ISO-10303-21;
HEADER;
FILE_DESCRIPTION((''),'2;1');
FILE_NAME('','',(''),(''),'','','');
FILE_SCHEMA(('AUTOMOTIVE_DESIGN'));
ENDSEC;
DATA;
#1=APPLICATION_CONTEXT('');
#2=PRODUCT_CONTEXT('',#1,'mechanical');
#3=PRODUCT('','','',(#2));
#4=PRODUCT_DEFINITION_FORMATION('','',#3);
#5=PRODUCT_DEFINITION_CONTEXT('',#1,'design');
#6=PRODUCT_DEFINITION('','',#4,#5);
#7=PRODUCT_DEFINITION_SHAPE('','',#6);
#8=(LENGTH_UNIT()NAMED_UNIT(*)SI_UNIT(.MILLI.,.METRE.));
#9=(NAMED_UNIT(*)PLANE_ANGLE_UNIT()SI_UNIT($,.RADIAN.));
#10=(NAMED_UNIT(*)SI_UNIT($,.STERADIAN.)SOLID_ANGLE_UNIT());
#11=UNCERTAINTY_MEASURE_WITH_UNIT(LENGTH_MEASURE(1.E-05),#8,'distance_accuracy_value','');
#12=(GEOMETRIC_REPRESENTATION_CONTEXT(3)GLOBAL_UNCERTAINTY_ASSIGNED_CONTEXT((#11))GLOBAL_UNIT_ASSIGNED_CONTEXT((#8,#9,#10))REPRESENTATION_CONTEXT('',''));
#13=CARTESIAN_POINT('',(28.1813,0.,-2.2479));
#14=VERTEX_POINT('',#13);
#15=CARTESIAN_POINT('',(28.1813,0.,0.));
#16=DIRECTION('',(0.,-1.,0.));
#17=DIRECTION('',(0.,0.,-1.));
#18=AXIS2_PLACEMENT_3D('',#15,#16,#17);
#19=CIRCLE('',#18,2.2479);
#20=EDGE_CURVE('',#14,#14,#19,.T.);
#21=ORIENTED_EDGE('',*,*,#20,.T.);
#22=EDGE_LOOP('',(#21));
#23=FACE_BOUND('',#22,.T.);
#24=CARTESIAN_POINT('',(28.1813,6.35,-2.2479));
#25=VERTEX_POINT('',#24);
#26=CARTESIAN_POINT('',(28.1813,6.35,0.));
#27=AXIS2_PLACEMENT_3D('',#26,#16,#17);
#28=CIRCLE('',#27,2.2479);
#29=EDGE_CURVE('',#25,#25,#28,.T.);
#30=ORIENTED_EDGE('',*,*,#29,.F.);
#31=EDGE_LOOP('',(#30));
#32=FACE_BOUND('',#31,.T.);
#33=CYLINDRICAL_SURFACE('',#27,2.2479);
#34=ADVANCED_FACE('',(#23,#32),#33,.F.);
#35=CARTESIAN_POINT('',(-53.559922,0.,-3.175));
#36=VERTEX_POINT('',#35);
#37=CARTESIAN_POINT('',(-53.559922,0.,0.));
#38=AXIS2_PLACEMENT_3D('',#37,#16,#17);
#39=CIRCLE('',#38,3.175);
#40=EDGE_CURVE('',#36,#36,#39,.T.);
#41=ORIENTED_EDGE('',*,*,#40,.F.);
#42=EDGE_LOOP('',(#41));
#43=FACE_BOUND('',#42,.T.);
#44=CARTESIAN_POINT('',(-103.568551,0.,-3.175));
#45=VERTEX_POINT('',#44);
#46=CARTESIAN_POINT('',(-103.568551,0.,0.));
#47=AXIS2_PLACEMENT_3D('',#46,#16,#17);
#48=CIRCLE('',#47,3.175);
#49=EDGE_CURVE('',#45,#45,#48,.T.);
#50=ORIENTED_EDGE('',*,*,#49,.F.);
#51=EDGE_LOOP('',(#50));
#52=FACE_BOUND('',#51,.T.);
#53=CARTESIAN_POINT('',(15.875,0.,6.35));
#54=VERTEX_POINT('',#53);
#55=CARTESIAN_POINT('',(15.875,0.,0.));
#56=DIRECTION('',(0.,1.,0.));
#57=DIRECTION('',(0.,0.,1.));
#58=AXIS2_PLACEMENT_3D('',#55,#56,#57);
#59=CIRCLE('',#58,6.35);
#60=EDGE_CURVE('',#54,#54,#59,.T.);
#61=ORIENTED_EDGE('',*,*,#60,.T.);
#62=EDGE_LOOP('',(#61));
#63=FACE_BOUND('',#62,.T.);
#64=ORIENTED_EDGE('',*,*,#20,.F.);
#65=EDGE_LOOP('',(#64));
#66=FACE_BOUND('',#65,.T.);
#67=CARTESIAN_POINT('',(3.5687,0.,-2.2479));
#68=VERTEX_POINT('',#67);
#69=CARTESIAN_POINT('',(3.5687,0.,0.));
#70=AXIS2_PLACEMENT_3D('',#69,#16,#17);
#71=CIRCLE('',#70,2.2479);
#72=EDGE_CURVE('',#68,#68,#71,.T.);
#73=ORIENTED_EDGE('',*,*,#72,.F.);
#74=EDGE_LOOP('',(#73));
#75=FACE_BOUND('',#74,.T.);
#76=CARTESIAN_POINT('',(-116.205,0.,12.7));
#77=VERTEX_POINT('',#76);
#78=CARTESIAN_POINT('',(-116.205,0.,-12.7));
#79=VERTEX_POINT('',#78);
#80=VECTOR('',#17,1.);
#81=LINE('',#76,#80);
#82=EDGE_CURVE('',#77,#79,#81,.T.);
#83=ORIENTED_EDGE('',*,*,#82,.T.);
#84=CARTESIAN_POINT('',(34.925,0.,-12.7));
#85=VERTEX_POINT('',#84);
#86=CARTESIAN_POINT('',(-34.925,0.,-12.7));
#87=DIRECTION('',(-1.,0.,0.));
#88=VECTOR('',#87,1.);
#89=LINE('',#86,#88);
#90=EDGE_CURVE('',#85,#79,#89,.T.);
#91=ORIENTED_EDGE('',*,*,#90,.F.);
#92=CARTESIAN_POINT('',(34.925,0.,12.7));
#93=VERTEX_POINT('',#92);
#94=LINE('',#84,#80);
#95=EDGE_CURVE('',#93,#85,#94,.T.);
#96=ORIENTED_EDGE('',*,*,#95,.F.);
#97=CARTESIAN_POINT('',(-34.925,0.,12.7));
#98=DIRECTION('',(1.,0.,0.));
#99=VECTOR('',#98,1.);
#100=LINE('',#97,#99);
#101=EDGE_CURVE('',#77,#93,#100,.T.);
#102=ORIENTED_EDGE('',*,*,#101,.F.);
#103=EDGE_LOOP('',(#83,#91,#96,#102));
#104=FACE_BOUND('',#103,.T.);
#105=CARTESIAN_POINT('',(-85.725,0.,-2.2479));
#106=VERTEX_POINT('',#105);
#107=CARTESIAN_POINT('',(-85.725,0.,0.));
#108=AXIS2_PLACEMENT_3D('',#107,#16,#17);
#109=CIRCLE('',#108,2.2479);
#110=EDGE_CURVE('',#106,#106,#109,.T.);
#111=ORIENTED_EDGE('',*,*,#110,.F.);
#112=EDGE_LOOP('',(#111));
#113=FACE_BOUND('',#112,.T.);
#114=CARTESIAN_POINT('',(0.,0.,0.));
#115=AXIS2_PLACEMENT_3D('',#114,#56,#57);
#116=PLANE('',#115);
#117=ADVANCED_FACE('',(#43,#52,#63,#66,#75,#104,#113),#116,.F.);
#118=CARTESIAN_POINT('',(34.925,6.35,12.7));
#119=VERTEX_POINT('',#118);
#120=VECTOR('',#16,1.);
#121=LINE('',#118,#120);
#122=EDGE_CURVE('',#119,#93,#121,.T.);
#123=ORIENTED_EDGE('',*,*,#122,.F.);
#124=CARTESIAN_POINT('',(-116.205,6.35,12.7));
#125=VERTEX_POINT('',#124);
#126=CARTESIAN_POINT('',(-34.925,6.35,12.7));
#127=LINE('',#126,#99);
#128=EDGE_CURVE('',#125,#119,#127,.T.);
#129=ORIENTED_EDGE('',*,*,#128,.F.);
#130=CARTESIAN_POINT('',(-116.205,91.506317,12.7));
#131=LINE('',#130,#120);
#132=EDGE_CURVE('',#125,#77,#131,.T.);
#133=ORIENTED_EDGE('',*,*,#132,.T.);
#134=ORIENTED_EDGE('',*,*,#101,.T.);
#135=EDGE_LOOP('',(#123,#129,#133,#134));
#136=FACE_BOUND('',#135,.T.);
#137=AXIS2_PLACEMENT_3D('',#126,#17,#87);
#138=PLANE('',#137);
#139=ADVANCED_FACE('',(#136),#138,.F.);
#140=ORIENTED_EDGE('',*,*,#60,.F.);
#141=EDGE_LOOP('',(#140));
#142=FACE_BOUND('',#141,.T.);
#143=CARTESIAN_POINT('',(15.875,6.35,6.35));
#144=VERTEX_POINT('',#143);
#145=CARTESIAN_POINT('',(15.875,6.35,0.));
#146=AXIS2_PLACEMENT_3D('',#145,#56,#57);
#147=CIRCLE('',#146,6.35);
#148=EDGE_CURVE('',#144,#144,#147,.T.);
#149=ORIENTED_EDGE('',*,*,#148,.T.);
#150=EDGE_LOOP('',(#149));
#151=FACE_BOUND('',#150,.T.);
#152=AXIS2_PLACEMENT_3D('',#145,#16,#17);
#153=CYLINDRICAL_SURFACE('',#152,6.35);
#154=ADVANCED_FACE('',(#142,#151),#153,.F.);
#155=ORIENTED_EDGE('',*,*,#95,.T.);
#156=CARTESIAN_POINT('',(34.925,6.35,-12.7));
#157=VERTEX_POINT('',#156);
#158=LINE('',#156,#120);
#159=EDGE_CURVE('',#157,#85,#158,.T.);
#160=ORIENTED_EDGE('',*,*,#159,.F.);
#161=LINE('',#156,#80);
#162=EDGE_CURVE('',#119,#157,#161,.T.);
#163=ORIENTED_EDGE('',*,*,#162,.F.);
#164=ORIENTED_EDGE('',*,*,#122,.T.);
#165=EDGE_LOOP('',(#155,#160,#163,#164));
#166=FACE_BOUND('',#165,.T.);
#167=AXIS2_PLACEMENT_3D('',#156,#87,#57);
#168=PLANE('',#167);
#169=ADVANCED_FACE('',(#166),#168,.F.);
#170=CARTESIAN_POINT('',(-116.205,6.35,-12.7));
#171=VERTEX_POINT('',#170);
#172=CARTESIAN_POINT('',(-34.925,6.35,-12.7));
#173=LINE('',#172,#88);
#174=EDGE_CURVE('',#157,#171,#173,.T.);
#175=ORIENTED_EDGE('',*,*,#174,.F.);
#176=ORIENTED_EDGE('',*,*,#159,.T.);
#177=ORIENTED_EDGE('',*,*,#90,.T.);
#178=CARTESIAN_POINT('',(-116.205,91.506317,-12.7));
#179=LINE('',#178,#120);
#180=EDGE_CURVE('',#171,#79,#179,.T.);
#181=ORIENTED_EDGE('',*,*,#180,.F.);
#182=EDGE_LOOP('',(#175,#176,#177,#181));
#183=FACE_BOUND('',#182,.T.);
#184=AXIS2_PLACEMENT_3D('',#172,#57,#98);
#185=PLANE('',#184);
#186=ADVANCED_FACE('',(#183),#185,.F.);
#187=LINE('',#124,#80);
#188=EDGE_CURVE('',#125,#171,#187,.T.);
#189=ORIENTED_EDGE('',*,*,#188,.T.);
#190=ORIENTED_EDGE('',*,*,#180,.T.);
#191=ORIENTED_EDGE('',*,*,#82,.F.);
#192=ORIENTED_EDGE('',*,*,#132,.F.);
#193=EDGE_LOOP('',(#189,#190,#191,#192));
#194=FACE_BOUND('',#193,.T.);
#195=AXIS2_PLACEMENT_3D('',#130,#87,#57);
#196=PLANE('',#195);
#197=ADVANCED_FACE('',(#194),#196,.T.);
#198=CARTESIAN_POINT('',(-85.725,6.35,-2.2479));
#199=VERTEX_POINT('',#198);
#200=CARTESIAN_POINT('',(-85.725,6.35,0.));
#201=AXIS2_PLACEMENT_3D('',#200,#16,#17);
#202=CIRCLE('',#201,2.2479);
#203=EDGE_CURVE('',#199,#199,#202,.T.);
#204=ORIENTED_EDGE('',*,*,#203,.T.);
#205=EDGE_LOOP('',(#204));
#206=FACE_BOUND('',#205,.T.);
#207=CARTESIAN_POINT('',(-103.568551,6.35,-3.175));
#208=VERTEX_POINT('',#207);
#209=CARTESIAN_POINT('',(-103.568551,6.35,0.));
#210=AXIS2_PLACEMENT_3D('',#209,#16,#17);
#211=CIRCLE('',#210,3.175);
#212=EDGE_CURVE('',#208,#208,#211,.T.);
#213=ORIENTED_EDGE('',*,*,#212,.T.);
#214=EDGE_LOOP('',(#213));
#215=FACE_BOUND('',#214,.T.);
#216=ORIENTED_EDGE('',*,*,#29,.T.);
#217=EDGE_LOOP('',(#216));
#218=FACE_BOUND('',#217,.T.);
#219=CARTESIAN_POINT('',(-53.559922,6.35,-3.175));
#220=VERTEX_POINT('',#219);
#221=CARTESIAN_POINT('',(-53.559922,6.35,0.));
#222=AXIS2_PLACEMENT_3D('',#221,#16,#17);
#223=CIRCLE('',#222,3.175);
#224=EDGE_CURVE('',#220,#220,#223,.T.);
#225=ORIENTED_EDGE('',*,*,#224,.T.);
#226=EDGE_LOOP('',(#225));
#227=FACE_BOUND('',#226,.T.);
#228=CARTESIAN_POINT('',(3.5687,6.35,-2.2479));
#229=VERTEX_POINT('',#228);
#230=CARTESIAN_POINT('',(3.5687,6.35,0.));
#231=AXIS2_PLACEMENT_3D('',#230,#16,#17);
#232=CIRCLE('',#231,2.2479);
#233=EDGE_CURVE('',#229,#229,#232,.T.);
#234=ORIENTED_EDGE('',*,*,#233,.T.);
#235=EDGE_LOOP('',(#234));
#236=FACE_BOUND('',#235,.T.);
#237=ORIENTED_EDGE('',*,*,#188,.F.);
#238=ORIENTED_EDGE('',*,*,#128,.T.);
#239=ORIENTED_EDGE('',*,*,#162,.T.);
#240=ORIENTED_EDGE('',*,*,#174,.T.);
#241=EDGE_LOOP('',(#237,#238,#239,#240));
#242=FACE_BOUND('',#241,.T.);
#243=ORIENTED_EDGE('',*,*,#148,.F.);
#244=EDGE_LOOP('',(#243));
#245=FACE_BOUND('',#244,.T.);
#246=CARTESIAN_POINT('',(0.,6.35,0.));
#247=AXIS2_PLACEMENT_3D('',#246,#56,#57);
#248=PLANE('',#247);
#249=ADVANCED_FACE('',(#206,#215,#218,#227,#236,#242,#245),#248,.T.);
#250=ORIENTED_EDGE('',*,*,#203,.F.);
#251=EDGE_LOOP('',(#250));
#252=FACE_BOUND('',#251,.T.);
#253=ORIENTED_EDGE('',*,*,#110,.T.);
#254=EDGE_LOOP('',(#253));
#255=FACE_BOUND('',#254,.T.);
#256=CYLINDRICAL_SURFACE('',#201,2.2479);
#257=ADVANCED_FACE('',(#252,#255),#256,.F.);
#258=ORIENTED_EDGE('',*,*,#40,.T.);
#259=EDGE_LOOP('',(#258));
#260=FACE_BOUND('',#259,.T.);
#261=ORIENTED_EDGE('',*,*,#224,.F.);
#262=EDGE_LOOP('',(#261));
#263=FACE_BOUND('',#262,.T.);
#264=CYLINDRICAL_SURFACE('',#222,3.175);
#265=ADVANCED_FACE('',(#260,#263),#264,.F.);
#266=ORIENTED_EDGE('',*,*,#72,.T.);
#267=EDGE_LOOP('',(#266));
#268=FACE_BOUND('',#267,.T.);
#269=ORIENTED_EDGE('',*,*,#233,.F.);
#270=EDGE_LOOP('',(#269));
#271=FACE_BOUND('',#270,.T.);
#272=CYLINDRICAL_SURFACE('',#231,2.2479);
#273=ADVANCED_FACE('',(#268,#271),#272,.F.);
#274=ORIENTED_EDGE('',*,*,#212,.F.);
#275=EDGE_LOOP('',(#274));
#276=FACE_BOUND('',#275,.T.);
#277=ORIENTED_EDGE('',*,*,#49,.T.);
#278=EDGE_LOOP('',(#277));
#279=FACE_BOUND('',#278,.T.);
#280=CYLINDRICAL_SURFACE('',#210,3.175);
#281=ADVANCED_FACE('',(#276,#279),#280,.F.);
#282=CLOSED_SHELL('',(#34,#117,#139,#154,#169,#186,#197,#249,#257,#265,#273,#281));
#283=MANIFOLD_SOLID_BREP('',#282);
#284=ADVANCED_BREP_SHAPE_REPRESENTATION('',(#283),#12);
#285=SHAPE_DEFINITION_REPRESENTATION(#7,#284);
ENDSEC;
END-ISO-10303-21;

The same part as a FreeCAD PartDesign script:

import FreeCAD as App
import Part
import Sketcher
Q = App.Units.Quantity

doc = App.newDocument("Part")
body = doc.addObject("PartDesign::Body", "Body")

# Sketch on XZ plane
sketch1 = doc.addObject("Sketcher::SketchObject", "Sketch")
body.addObject(sketch1)
sketch1.AttachmentSupport = (doc.XZ_Plane, [""])
sketch1.MapMode = "FlatFace"
sketch1.addGeometry([
    Part.LineSegment(App.Vector(-35, -13, 0), App.Vector(-35, 13, 0)),  # 0
    Part.LineSegment(App.Vector(-35, 13, 0), App.Vector(35, 13, 0)),  # 1
    Part.LineSegment(App.Vector(35, 13, 0), App.Vector(35, -13, 0)),  # 2
    Part.LineSegment(App.Vector(35, -13, 0), App.Vector(-35, -13, 0)),  # 3
    Part.Circle(App.Vector(16, 0, 0), App.Vector(0, 0, 1), 6),  # 4
], False)
sketch1.addConstraint([
    Sketcher.Constraint("Coincident", 0, 2, 1, 1),
    Sketcher.Constraint("Coincident", 1, 2, 2, 1),
    Sketcher.Constraint("Coincident", 2, 2, 3, 1),
    Sketcher.Constraint("Coincident", 3, 2, 0, 1),
    Sketcher.Constraint("Vertical", 0),
    Sketcher.Constraint("Horizontal", 1),
    Sketcher.Constraint("Vertical", 2),
    Sketcher.Constraint("Horizontal", 3),
    Sketcher.Constraint("Symmetric", 0, 2, 2, 2, -1, 1),
    Sketcher.Constraint("PointOnObject", 4, 3, -1),
    Sketcher.Constraint("Diameter", 4, Q("0.5 in")),
    Sketcher.Constraint("DistanceY", 0, 1, 0, 2, Q("1 in")),
    Sketcher.Constraint("DistanceX", 0, 2, 4, 3, Q("2 in")),
    Sketcher.Constraint("DistanceX", 1, 1, 1, 2, Q("2.75 in")),
])
pad1 = doc.addObject("PartDesign::Pad", "Pad")
body.addObject(pad1)
pad1.Profile = sketch1
pad1.Length = Q("0.25 in")
pad1.Reversed = True

# Sketch on XZ plane
sketch2 = doc.addObject("Sketcher::SketchObject", "Sketch001")
body.addObject(sketch2)
sketch2.AttachmentSupport = (doc.XZ_Plane, [""])
sketch2.MapMode = "FlatFace"
sketch2.addGeometry([
    Part.LineSegment(App.Vector(-116, 13, 0), App.Vector(-116, -13, 0)),
    Part.LineSegment(App.Vector(-116, -13, 0), App.Vector(-35, -13, 0)),
    Part.LineSegment(App.Vector(-35, -13, 0), App.Vector(-35, 13, 0)),
    Part.LineSegment(App.Vector(-35, 13, 0), App.Vector(-116, 13, 0)),
], False)
sketch2.addConstraint([
    Sketcher.Constraint("Coincident", 0, 2, 1, 1),
    Sketcher.Constraint("Coincident", 1, 2, 2, 1),
    Sketcher.Constraint("Coincident", 2, 2, 3, 1),
    Sketcher.Constraint("Coincident", 3, 2, 0, 1),
    Sketcher.Constraint("Vertical", 0),
    Sketcher.Constraint("Horizontal", 1),
    Sketcher.Constraint("Vertical", 2),
    Sketcher.Constraint("Horizontal", 3),
    Sketcher.Constraint("DistanceY", 0, 2, 0, 1, Q("1 in")),
    Sketcher.Constraint("DistanceX", 1, 1, 1, 2, Q("3.2 in")),
    Sketcher.Constraint("DistanceY", 0, 2, -1, 1, Q("0.5 in")),
    Sketcher.Constraint("DistanceX", 0, 2, -1, 1, Q("4.575 in")),
])
pad2 = doc.addObject("PartDesign::Pad", "Pad001")
body.addObject(pad2)
pad2.Profile = sketch2
pad2.Length = Q("0.25 in")
pad2.Reversed = True

# Sketch on XZ plane
sketch3 = doc.addObject("Sketcher::SketchObject", "Sketch002")
body.addObject(sketch3)
sketch3.AttachmentSupport = (doc.XZ_Plane, [""])
sketch3.MapMode = "FlatFace"
sketch3.addGeometry([
    Part.Circle(App.Vector(-53.6, 0, 0), App.Vector(0, 0, 1), 3.2),
    Part.Circle(App.Vector(-85.7, 0, 0), App.Vector(0, 0, 1), 2.2),
    Part.Circle(App.Vector(-103.6, 0, 0), App.Vector(0, 0, 1), 3.2),
], False)
sketch3.addConstraint([
    Sketcher.Constraint("Equal", 0, 2),
    Sketcher.Constraint("PointOnObject", 0, 3, -1),
    Sketcher.Constraint("PointOnObject", 1, 3, -1),
    Sketcher.Constraint("PointOnObject", 2, 3, -1),
    Sketcher.Constraint("Diameter", 0, Q("0.25 in")),
    Sketcher.Constraint("Diameter", 1, Q("0.177 in")),
    Sketcher.Constraint("DistanceX", 1, 3, -1, 1, Q("3.375 in")),
    Sketcher.Constraint("DistanceX", 2, 3, -1, 1, 103.568551),
    Sketcher.Constraint("DistanceX", 2, 3, 0, 3, 50.008629),
])
pocket1 = doc.addObject("PartDesign::Pocket", "Pocket")
body.addObject(pocket1)
pocket1.Profile = sketch3
pocket1.Type = "ThroughAll"

# Sketch on XZ plane
sketch4 = doc.addObject("Sketcher::SketchObject", "Sketch003")
body.addObject(sketch4)
sketch4.AttachmentSupport = (doc.XZ_Plane, [""])
sketch4.MapMode = "FlatFace"
sketch4.addGeometry([
    Part.Circle(App.Vector(28.2, 0, 0), App.Vector(0, 0, 1), 2.2),
    Part.Circle(App.Vector(3.6, 0, 0), App.Vector(0, 0, 1), 2.2),
], False)
sketch4.addConstraint([
    Sketcher.Constraint("Equal", 0, 1),
    Sketcher.Constraint("PointOnObject", 0, 3, -1),
    Sketcher.Constraint("PointOnObject", 1, 3, -1),
    Sketcher.Constraint("Diameter", 0, Q("0.177 in")),
    Sketcher.Constraint("DistanceX", 1, 3, 0, 3, Q("0.969 in")),
    Sketcher.Constraint("DistanceX", -1, 1, 0, 3, Q("1.1095 in")),
])
pocket2 = doc.addObject("PartDesign::Pocket", "Pocket001")
body.addObject(pocket2)
pocket2.Profile = sketch4
pocket2.Type = "ThroughAll"

doc.recompute()
